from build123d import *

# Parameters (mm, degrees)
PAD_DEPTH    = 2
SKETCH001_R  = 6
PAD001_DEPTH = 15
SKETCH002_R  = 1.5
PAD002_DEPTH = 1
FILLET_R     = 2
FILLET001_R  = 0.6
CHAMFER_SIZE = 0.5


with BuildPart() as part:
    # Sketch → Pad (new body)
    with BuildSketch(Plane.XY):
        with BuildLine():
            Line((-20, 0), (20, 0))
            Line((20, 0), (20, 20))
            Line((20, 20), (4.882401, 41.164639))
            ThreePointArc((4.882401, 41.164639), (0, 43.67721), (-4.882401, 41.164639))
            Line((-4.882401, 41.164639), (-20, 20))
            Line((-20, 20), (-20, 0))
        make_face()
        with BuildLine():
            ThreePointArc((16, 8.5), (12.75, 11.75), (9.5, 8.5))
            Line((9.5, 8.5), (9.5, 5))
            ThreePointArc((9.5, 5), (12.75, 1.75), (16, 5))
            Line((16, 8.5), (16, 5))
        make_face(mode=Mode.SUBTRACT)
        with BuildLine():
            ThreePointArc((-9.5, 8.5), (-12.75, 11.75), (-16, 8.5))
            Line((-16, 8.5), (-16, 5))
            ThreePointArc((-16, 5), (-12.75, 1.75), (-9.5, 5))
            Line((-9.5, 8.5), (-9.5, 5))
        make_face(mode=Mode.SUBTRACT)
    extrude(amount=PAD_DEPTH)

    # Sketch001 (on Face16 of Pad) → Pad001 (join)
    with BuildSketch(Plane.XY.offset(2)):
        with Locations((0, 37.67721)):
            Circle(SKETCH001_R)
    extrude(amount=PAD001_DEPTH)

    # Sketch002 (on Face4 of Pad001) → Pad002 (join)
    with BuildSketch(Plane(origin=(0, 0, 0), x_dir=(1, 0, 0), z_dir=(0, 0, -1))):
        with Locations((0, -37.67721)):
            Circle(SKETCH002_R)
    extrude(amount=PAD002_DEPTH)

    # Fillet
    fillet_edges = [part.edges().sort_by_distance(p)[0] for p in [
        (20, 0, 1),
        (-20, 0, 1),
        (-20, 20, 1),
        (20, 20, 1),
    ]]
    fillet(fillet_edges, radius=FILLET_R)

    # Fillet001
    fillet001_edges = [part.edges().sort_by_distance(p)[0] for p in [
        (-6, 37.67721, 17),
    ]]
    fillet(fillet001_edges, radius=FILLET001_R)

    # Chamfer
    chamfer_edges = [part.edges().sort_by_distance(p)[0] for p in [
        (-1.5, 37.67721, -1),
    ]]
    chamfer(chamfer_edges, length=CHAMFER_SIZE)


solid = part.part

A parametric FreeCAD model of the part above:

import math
import FreeCAD as App
import Part
import Sketcher
from FreeCAD import Vector
Q = App.Units.Quantity


def edges_at(feature, points):
    """Names of the edges that pass closest to the given points."""
    edges = feature.Shape.Edges
    near = lambda p: min(range(len(edges)), key=lambda i: edges[i].distToShape(Part.Vertex(*p))[0])
    return sorted({f"Edge{near(p) + 1}" for p in points})

doc = App.newDocument("Part")
body = doc.addObject("PartDesign::Body", "Body")

sketch1 = body.newObject("Sketcher::SketchObject", "Sketch")
sketch1.AttachmentSupport = (doc.getObject("XY_Plane"), [""])
sketch1.MapMode = "FlatFace"
sketch1.addGeometry([
    Part.LineSegment(Vector(-20, 0, 0), Vector(20, 0, 0)),
    Part.LineSegment(Vector(20, 0, 0), Vector(20, 20, 0)),
    Part.LineSegment(Vector(20, 20, 0), Vector(4.9, 41.2, 0)),
    Part.ArcOfCircle(Part.Circle(Vector(0, 37.7, 0), Vector(0, 0, 1), 6), math.radians(36), math.radians(144)),
    Part.LineSegment(Vector(-4.9, 41.2, 0), Vector(-20, 20, 0)),
    Part.LineSegment(Vector(-20, 20, 0), Vector(-20, 0, 0)),
    Part.ArcOfCircle(Part.Circle(Vector(-12.8, 8.5, 0), Vector(0, 0, 1), 3.2), math.radians(0), math.radians(180)),
    Part.LineSegment(Vector(-9.5, 8.5, 0), Vector(-9.5, 5, 0)),
    Part.ArcOfCircle(Part.Circle(Vector(-12.8, 5, 0), Vector(0, 0, 1), 3.2), math.radians(180), math.radians(360)),
    Part.LineSegment(Vector(-16, 5, 0), Vector(-16, 8.5, 0)),
    Part.ArcOfCircle(Part.Circle(Vector(12.8, 8.5, 0), Vector(0, 0, 1), 3.2), math.radians(0), math.radians(180)),
    Part.LineSegment(Vector(16, 8.5, 0), Vector(16, 5, 0)),
    Part.ArcOfCircle(Part.Circle(Vector(12.8, 5, 0), Vector(0, 0, 1), 3.2), math.radians(180), math.radians(360)),
    Part.LineSegment(Vector(9.5, 5, 0), Vector(9.5, 8.5, 0)),
], False)
sketch1.addConstraint([
    Sketcher.Constraint("Coincident", 0, 2, 1, 1),
    Sketcher.Constraint("Coincident", 1, 2, 2, 1),
    Sketcher.Constraint("Tangent", 2, 2, 3, 1),
    Sketcher.Constraint("Tangent", 3, 2, 4, 1),
    Sketcher.Constraint("Coincident", 4, 2, 5, 1),
    Sketcher.Constraint("Coincident", 5, 2, 0, 1),
    Sketcher.Constraint("Tangent", 6, 1, 7, 1),
    Sketcher.Constraint("Tangent", 7, 2, 8, 2),
    Sketcher.Constraint("Tangent", 8, 1, 9, 1),
    Sketcher.Constraint("Tangent", 9, 2, 6, 2),
    Sketcher.Constraint("Tangent", 10, 1, 11, 1),
    Sketcher.Constraint("Tangent", 11, 2, 12, 2),
    Sketcher.Constraint("Tangent", 12, 1, 13, 1),
    Sketcher.Constraint("Tangent", 13, 2, 10, 2),
    Sketcher.Constraint("Horizontal", 0),
    Sketcher.Constraint("Vertical", 1),
    Sketcher.Constraint("Vertical", 5),
    Sketcher.Constraint("Vertical", 7),
    Sketcher.Constraint("Vertical", 9),
    Sketcher.Constraint("Vertical", 11),
    Sketcher.Constraint("Vertical", 13),
    Sketcher.Constraint("Equal", 8, 10),
    Sketcher.Constraint("Symmetric", 0, 2, 5, 2, -1, 1),
    Sketcher.Constraint("Symmetric", 6, 3, 10, 3, -2),
    Sketcher.Constraint("Symmetric", 2, 2, 3, 2, -2),
    Sketcher.Constraint("Horizontal", 8, 3, 12, 3),
    Sketcher.Constraint("Radius", 3, Q("6 mm")),
    Sketcher.Constraint("DistanceX", 0, 1, 0, 2, Q("40 mm")),
    Sketcher.Constraint("DistanceY", 1, 1, 1, 2, Q("20 mm")),
    Sketcher.Constraint("Radius", 6, Q("3.25 mm")),
    Sketcher.Constraint("DistanceY", 7, 2, 7, 1, Q("3.5 mm")),
    Sketcher.Constraint("DistanceY", -1, 1, 8, 3, Q("5 mm")),
    Sketcher.Constraint("DistanceX", 8, 1, -1, 1, Q("16 mm")),
    Sketcher.Constraint("Distance", 2, Q("26.009301 mm")),
])
pad1 = body.newObject("PartDesign::Pad", "Pad")
pad1.Profile = sketch1
pad1.Length = 2

sketch2 = body.newObject("Sketcher::SketchObject", "Sketch001")
sketch2.AttachmentSupport = (doc.getObject("XY_Plane"), [""])
sketch2.MapMode = "FlatFace"
sketch2.AttachmentOffset = App.Placement(Vector(0, 0, 2), App.Rotation())
sketch2.addGeometry(Part.Circle(Vector(0, 38, 0), Vector(0, 0, 1), 6), False)
sketch2.addConstraint([
    Sketcher.Constraint("PointOnObject", 0, 3, -2),
    Sketcher.Constraint("Diameter", 0, Q("12 mm")),
    Sketcher.Constraint("DistanceY", -1, 1, 0, 3, Q("37.67721 mm")),
])
pad2 = body.newObject("PartDesign::Pad", "Pad001")
pad2.Profile = sketch2
pad2.Length = 15

sketch3 = body.newObject("Sketcher::SketchObject", "Sketch002")
sketch3.AttachmentSupport = (doc.getObject("XY_Plane"), [""])
sketch3.MapMode = "FlatFace"
sketch3.addGeometry(Part.Circle(Vector(0, 37.7, 0), Vector(0, 0, 1), 1.5), False)
sketch3.addConstraint([
    Sketcher.Constraint("PointOnObject", 0, 3, -2),
    Sketcher.Constraint("Diameter", 0, Q("3 mm")),
    Sketcher.Constraint("DistanceY", -1, 1, 0, 3, Q("37.67721 mm")),
])
pad3 = body.newObject("PartDesign::Pad", "Pad002")
pad3.Profile = sketch3
pad3.Length = 1
pad3.Reversed = True
doc.recompute()

fillet = body.newObject("PartDesign::Fillet", "Fillet")
fillet.Base = (pad3, edges_at(pad3, [
    (20, 0, 1),
    (-20, 0, 1),
    (-20, 20, 1),
    (20, 20, 1),
]))
fillet.Radius = 2
doc.recompute()

fillet2 = body.newObject("PartDesign::Fillet", "Fillet001")
fillet2.Base = (fillet, edges_at(fillet, [(-6, 37.677, 17)]))
fillet2.Radius = 0.6
doc.recompute()

chamfer = body.newObject("PartDesign::Chamfer", "Chamfer")
chamfer.Base = (fillet2, edges_at(fillet2, [(-1.5, 37.677, -1)]))
chamfer.Size = 0.5

doc.recompute()
